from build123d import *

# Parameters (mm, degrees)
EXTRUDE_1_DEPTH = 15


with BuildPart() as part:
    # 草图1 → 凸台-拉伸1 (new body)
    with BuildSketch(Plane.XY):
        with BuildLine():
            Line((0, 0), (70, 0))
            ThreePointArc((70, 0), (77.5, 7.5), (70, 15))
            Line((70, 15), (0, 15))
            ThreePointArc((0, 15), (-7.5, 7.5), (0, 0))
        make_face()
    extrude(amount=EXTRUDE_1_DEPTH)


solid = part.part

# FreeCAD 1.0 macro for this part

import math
import FreeCAD as App
import Part
import Sketcher
from FreeCAD import Vector
Q = App.Units.Quantity

doc = App.newDocument("Part")
body = doc.addObject("PartDesign::Body", "Body")

# Sketch on XY plane
sketch1 = body.newObject("Sketcher::SketchObject", "Sketch")
sketch1.AttachmentSupport = (doc.getObject("XY_Plane"), [""])
sketch1.MapMode = "FlatFace"
sketch1.addGeometry(Part.LineSegment(Vector(0, 0, 0), Vector(70, 0, 0)), False)
sketch1.addGeometry(Part.ArcOfCircle(Part.Circle(Vector(70, 7.5, 0), Vector(0, 0, 1), 7.5), math.radians(-90), math.radians(90)), False)
sketch1.addGeometry(Part.LineSegment(Vector(70, 15, 0), Vector(0, 15, 0)), False)
sketch1.addGeometry(Part.ArcOfCircle(Part.Circle(Vector(0, 7.5, 0), Vector(0, 0, 1), 7.5), math.radians(90), math.radians(270)), False)
sketch1.addConstraint(Sketcher.Constraint("Tangent", 0, 2, 1, 1))
sketch1.addConstraint(Sketcher.Constraint("Tangent", 1, 2, 2, 1))
sketch1.addConstraint(Sketcher.Constraint("Tangent", 2, 2, 3, 1))
sketch1.addConstraint(Sketcher.Constraint("Tangent", 3, 2, 0, 1))
sketch1.addConstraint(Sketcher.Constraint("Horizontal", 0))
sketch1.addConstraint(Sketcher.Constraint("Horizontal", 2))
sketch1.addConstraint(Sketcher.Constraint("Coincident", 3, 2, -1, 1))
sketch1.addConstraint(Sketcher.Constraint("Radius", 1, Q("7.5 mm")))
sketch1.addConstraint(Sketcher.Constraint("DistanceX", 0, 1, 0, 2, Q("70 mm")))
pad1 = body.newObject("PartDesign::Pad", "Pad")
pad1.Profile = sketch1
pad1.Length = 15

doc.recompute()
